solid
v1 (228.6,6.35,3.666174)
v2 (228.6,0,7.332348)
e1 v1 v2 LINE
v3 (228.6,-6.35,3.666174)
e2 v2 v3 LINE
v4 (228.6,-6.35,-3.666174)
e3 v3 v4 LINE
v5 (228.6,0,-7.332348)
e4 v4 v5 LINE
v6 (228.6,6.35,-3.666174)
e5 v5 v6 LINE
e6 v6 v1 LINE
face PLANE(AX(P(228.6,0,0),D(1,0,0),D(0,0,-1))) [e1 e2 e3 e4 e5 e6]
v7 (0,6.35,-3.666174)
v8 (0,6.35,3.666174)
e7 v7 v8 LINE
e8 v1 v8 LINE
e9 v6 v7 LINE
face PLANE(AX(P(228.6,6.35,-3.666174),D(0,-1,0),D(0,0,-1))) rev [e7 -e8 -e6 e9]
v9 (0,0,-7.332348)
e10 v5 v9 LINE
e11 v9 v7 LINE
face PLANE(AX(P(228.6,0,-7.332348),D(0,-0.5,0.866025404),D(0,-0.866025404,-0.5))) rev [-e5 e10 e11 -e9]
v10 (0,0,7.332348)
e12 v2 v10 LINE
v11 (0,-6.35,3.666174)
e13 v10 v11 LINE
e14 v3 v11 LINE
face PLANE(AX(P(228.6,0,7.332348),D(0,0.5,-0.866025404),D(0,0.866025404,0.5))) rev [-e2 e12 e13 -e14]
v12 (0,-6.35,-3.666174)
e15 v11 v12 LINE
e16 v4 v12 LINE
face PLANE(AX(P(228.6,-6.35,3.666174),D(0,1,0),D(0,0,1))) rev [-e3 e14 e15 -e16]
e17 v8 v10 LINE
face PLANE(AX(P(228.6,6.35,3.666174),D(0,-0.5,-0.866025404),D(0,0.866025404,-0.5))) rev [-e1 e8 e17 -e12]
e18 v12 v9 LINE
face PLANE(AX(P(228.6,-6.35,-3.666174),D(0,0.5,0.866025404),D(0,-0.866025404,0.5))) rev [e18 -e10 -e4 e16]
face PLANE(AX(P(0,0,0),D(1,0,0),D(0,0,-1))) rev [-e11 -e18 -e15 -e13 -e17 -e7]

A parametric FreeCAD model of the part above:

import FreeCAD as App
import Part
import Sketcher
Q = App.Units.Quantity

doc = App.newDocument("Part")
params = doc.addObject("Spreadsheet::Sheet", "Params")
for row, (alias, value) in enumerate([
    ("pad1_length", "9 in"),
], start=1):
    params.set(f"A{row}", alias)
    params.set(f"B{row}", "=" + value)
    params.setAlias(f"B{row}", alias)

body = doc.addObject("PartDesign::Body", "Body")

# Sketch on YZ plane
sketch1 = doc.addObject("Sketcher::SketchObject", "Sketch")
body.addObject(sketch1)
sketch1.AttachmentSupport = (doc.YZ_Plane, [""])
sketch1.MapMode = "FlatFace"
sketch1.addGeometry([
    Part.LineSegment(App.Vector(0, -7.332348, 0), App.Vector(6.35, -3.666174, 0)),  # 0
    Part.LineSegment(App.Vector(6.35, -3.666174, 0), App.Vector(6.35, 3.666174, 0)),  # 1
    Part.LineSegment(App.Vector(6.35, 3.666174, 0), App.Vector(0, 7.332348, 0)),  # 2
    Part.LineSegment(App.Vector(0, 7.332348, 0), App.Vector(-6.35, 3.666174, 0)),  # 3
    Part.LineSegment(App.Vector(-6.35, 3.666174, 0), App.Vector(-6.35, -3.666174, 0)),  # 4
    Part.LineSegment(App.Vector(-6.35, -3.666174, 0), App.Vector(0, -7.332348, 0)),  # 5
], False)
sketch1.addConstraint([
    Sketcher.Constraint("Coincident", 0, 2, 1, 1),
    Sketcher.Constraint("Coincident", 1, 2, 2, 1),
    Sketcher.Constraint("Coincident", 2, 2, 3, 1),
    Sketcher.Constraint("Coincident", 3, 2, 4, 1),
    Sketcher.Constraint("Coincident", 4, 2, 5, 1),
    Sketcher.Constraint("Coincident", 5, 2, 0, 1),
    Sketcher.Constraint("Vertical", 1),
    Sketcher.Constraint("Vertical", 4),
    Sketcher.Constraint("Symmetric", 0, 2, 3, 2, -1, 1),
    Sketcher.Constraint("Symmetric", 2, 2, 5, 2, -1, 1),
    Sketcher.Constraint("PointOnObject", 2, 2, -2),
    Sketcher.Constraint("Parallel", 2, 5),
    Sketcher.Constraint("Horizontal", 1, 2, 3, 2),
    Sketcher.Constraint("Angle", 0, Q("30 deg")),
    Sketcher.Constraint("DistanceX", 3, 2, 1, 2, Q("0.5 in")),
    Sketcher.Constraint("DistanceY", 1, 1, 1, 2, 7.332348),
])
pad1 = doc.addObject("PartDesign::Pad", "Pad")
body.addObject(pad1)
pad1.Profile = sketch1
pad1.setExpression("Length", "Params.pad1_length")

doc.recompute()
